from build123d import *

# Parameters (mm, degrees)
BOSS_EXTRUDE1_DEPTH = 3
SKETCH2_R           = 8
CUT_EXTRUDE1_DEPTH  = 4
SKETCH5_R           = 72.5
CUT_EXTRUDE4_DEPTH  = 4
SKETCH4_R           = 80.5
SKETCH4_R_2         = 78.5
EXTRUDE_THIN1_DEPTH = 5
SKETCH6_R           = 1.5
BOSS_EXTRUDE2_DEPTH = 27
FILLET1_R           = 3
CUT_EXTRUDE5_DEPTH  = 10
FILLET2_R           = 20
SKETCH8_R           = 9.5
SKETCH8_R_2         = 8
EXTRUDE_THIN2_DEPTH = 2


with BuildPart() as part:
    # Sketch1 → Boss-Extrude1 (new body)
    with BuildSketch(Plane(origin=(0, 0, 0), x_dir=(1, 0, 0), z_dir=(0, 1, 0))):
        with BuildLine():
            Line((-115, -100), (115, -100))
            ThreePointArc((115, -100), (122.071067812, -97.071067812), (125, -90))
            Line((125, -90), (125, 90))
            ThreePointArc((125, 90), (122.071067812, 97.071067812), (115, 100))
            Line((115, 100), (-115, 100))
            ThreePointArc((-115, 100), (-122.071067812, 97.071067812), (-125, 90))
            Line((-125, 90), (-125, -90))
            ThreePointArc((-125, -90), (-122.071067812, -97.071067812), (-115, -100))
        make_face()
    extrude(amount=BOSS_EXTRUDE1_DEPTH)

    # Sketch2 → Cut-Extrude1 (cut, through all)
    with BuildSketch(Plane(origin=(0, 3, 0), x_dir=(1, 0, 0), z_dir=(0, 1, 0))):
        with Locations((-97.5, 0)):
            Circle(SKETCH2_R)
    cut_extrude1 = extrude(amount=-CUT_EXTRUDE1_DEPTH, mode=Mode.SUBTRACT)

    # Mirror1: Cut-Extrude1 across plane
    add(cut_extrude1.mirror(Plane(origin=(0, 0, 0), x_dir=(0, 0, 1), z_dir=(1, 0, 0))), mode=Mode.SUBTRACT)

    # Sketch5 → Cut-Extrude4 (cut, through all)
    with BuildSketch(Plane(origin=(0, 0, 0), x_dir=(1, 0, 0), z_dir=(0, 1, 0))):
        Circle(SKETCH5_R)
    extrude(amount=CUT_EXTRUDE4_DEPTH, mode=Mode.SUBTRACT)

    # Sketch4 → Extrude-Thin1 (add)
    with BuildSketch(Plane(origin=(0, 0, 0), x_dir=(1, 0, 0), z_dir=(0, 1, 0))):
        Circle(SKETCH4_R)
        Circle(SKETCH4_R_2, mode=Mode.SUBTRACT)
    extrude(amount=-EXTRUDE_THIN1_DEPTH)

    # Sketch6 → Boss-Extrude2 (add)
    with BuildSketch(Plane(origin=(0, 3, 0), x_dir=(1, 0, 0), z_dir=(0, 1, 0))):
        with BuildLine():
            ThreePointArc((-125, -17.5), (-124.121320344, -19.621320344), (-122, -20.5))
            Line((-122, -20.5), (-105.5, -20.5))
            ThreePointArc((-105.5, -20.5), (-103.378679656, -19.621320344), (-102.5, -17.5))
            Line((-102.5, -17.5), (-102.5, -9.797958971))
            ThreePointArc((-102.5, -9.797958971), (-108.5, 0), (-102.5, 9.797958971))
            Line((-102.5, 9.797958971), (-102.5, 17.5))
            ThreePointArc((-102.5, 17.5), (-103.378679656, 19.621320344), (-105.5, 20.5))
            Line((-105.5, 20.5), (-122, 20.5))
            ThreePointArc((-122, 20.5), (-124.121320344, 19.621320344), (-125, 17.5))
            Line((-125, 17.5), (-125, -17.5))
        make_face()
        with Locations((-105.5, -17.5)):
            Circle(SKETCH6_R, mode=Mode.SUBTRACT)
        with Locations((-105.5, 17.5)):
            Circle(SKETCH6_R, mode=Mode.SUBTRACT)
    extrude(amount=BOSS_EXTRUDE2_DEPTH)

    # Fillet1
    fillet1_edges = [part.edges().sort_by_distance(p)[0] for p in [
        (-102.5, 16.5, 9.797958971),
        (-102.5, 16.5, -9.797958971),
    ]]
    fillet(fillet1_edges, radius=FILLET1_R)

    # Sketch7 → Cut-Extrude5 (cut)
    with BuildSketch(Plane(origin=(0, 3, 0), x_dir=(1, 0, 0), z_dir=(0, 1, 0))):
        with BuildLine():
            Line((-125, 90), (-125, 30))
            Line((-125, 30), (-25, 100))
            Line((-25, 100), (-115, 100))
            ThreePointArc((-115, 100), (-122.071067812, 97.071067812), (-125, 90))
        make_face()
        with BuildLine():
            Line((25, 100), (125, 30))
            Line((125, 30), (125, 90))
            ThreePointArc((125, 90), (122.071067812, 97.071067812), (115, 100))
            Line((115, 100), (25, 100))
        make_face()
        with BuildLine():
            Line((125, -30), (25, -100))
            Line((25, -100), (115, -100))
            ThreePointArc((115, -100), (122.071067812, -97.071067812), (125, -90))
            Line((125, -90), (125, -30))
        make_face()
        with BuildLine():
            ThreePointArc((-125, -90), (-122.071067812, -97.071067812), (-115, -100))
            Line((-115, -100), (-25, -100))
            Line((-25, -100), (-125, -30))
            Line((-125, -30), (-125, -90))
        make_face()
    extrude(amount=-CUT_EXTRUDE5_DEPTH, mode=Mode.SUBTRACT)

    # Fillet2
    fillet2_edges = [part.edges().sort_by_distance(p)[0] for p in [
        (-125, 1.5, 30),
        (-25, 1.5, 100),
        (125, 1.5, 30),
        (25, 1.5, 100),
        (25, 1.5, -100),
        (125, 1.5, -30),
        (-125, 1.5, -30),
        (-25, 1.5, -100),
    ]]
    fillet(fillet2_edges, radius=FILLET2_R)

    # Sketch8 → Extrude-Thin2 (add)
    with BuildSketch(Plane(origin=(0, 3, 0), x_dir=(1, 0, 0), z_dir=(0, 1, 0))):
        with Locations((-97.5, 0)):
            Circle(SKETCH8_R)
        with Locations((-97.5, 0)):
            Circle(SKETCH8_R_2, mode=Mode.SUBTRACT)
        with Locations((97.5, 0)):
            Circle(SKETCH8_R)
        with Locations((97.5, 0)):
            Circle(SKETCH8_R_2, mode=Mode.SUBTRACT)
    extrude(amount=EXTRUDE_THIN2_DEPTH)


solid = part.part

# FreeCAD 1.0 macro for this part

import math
import FreeCAD as App
import Part
import Sketcher

V = App.Vector
Q = App.Units.Quantity


def edges_at(feature, points):
    """Names of the edges that pass closest to the given points."""
    edges = feature.Shape.Edges
    near = lambda p: min(range(len(edges)), key=lambda i: edges[i].distToShape(Part.Vertex(*p))[0])
    return sorted({f"Edge{near(p) + 1}" for p in points})

doc = App.newDocument("Part")
body = doc.addObject("PartDesign::Body", "Body")

# Sketch on XZ plane
sketch1 = body.newObject("Sketcher::SketchObject", "Sketch")
sketch1.AttachmentSupport = (doc.getObject("XZ_Plane"), [""])
sketch1.MapMode = "FlatFace"
sketch1.addGeometry(Part.LineSegment(V(-115, 100, 0), V(115, 100, 0)), False)
sketch1.addGeometry(Part.ArcOfCircle(Part.Circle(V(115, 90, 0), V(0, 0, 1), 10), math.radians(0), math.radians(90)), False)
sketch1.addGeometry(Part.LineSegment(V(125, 90, 0), V(125, -90, 0)), False)
sketch1.addGeometry(Part.ArcOfCircle(Part.Circle(V(115, -90, 0), V(0, 0, 1), 10), math.radians(-90), math.radians(0)), False)
sketch1.addGeometry(Part.LineSegment(V(115, -100, 0), V(-115, -100, 0)), False)
sketch1.addGeometry(Part.ArcOfCircle(Part.Circle(V(-115, -90, 0), V(0, 0, 1), 10), math.radians(180), math.radians(270)), False)
sketch1.addGeometry(Part.LineSegment(V(-125, -90, 0), V(-125, 90, 0)), False)
sketch1.addGeometry(Part.ArcOfCircle(Part.Circle(V(-115, 90, 0), V(0, 0, 1), 10), math.radians(90), math.radians(180)), False)
sketch1.addConstraint(Sketcher.Constraint("Tangent", 0, 2, 1, 2))
sketch1.addConstraint(Sketcher.Constraint("Tangent", 1, 1, 2, 1))
sketch1.addConstraint(Sketcher.Constraint("Tangent", 2, 2, 3, 2))
sketch1.addConstraint(Sketcher.Constraint("Tangent", 3, 1, 4, 1))
sketch1.addConstraint(Sketcher.Constraint("Tangent", 4, 2, 5, 2))
sketch1.addConstraint(Sketcher.Constraint("Tangent", 5, 1, 6, 1))
sketch1.addConstraint(Sketcher.Constraint("Tangent", 6, 2, 7, 2))
sketch1.addConstraint(Sketcher.Constraint("Tangent", 7, 1, 0, 1))
sketch1.addConstraint(Sketcher.Constraint("Horizontal", 0))
sketch1.addConstraint(Sketcher.Constraint("Vertical", 2))
sketch1.addConstraint(Sketcher.Constraint("Horizontal", 4))
sketch1.addConstraint(Sketcher.Constraint("Vertical", 6))
sketch1.addConstraint(Sketcher.Constraint("Equal", 1, 3))
sketch1.addConstraint(Sketcher.Constraint("Equal", 3, 5))
sketch1.addConstraint(Sketcher.Constraint("Equal", 5, 7))
sketch1.addConstraint(Sketcher.Constraint("Symmetric", 1, 3, 5, 3, -1, 1))
sketch1.addConstraint(Sketcher.Constraint("Radius", 1, Q("10 mm")))
sketch1.addConstraint(Sketcher.Constraint("DistanceX", 0, 1, 0, 2, Q("230 mm")))
sketch1.addConstraint(Sketcher.Constraint("DistanceY", 2, 2, 2, 1, Q("180 mm")))
pad1 = body.newObject("PartDesign::Pad", "Pad")
pad1.Profile = sketch1
pad1.Length = 3
pad1.Reversed = True

# Sketch on XZ plane
sketch2 = body.newObject("Sketcher::SketchObject", "Sketch001")
sketch2.AttachmentSupport = (doc.getObject("XZ_Plane"), [""])
sketch2.MapMode = "FlatFace"
sketch2.AttachmentOffset = App.Placement(V(0, 0, -3), App.Rotation())
sketch2.addGeometry(Part.Circle(V(-98, 0, 0), V(0, 0, 1), 8), False)
sketch2.addConstraint(Sketcher.Constraint("PointOnObject", 0, 3, -1))
sketch2.addConstraint(Sketcher.Constraint("Diameter", 0, Q("16 mm")))
sketch2.addConstraint(Sketcher.Constraint("DistanceX", 0, 3, -1, 1, Q("97.5 mm")))
pocket1 = body.newObject("PartDesign::Pocket", "Pocket")
pocket1.Profile = sketch2
pocket1.Type = "ThroughAll"
pocket1.Reversed = True
doc.recompute()

mirrored = body.newObject("PartDesign::Mirrored", "Mirrored")
mirrored.Originals = [pocket1]
mirrored.MirrorPlane = (doc.getObject("YZ_Plane"), [""])
body.Tip = mirrored

# Sketch on XZ plane
sketch3 = body.newObject("Sketcher::SketchObject", "Sketch002")
sketch3.AttachmentSupport = (doc.getObject("XZ_Plane"), [""])
sketch3.MapMode = "FlatFace"
sketch3.addGeometry(Part.Circle(V(0, 0, 0), V(0, 0, 1), 72), False)
sketch3.addConstraint(Sketcher.Constraint("Coincident", 0, 3, -1, 1))
sketch3.addConstraint(Sketcher.Constraint("Diameter", 0, Q("145 mm")))
pocket2 = body.newObject("PartDesign::Pocket", "Pocket001")
pocket2.Profile = sketch3
pocket2.Type = "ThroughAll"

# Sketch on XZ plane
sketch4 = body.newObject("Sketcher::SketchObject", "Sketch003")
sketch4.AttachmentSupport = (doc.getObject("XZ_Plane"), [""])
sketch4.MapMode = "FlatFace"
sketch4.addGeometry(Part.Circle(V(0, 0, 0), V(0, 0, 1), 80), False)
sketch4.addGeometry(Part.Circle(V(0, 0, 0), V(0, 0, 1), 78), False)
sketch4.addConstraint(Sketcher.Constraint("Coincident", 0, 3, -1, 1))
sketch4.addConstraint(Sketcher.Constraint("Coincident", 1, 3, -1, 1))
sketch4.addConstraint(Sketcher.Constraint("Diameter", 0, Q("161 mm")))
sketch4.addConstraint(Sketcher.Constraint("Diameter", 1, Q("157 mm")))
pad2 = body.newObject("PartDesign::Pad", "Pad001")
pad2.Profile = sketch4
pad2.Length = 5

# Sketch on XZ plane
sketch5 = body.newObject("Sketcher::SketchObject", "Sketch004")
sketch5.AttachmentSupport = (doc.getObject("XZ_Plane"), [""])
sketch5.MapMode = "FlatFace"
sketch5.AttachmentOffset = App.Placement(V(0, 0, -3), App.Rotation())
sketch5.addGeometry(Part.ArcOfCircle(Part.Circle(V(-122, 17.5, 0), V(0, 0, 1), 3), math.radians(90), math.radians(180)), False)
sketch5.addGeometry(Part.LineSegment(V(-122, 20.5, 0), V(-105.5, 20.5, 0)), False)
sketch5.addGeometry(Part.ArcOfCircle(Part.Circle(V(-105.5, 17.5, 0), V(0, 0, 1), 3), math.radians(0), math.radians(90)), False)
sketch5.addGeometry(Part.LineSegment(V(-102.5, 17.5, 0), V(-102.5, 9.8, 0)), False)
sketch5.addGeometry(Part.ArcOfCircle(Part.Circle(V(-97.5, 0, 0), V(0, 0, 1), 11), math.radians(117), math.radians(243)), False)
sketch5.addGeometry(Part.LineSegment(V(-102.5, -9.8, 0), V(-102.5, -17.5, 0)), False)
sketch5.addGeometry(Part.ArcOfCircle(Part.Circle(V(-105.5, -17.5, 0), V(0, 0, 1), 3), math.radians(-90), math.radians(0)), False)
sketch5.addGeometry(Part.LineSegment(V(-105.5, -20.5, 0), V(-122, -20.5, 0)), False)
sketch5.addGeometry(Part.ArcOfCircle(Part.Circle(V(-122, -17.5, 0), V(0, 0, 1), 3), math.radians(180), math.radians(270)), False)
sketch5.addGeometry(Part.LineSegment(V(-125, -17.5, 0), V(-125, 17.5, 0)), False)
sketch5.addGeometry(Part.Circle(V(-105.5, 17.5, 0), V(0, 0, 1), 1.5), False)
sketch5.addGeometry(Part.Circle(V(-105.5, -17.5, 0), V(0, 0, 1), 1.5), False)
sketch5.addConstraint(Sketcher.Constraint("Tangent", 0, 1, 1, 1))
sketch5.addConstraint(Sketcher.Constraint("Tangent", 1, 2, 2, 2))
sketch5.addConstraint(Sketcher.Constraint("Tangent", 2, 1, 3, 1))
sketch5.addConstraint(Sketcher.Constraint("Coincident", 3, 2, 4, 1))
sketch5.addConstraint(Sketcher.Constraint("Coincident", 4, 2, 5, 1))
sketch5.addConstraint(Sketcher.Constraint("Tangent", 5, 2, 6, 2))
sketch5.addConstraint(Sketcher.Constraint("Tangent", 6, 1, 7, 1))
sketch5.addConstraint(Sketcher.Constraint("Tangent", 7, 2, 8, 2))
sketch5.addConstraint(Sketcher.Constraint("Tangent", 8, 1, 9, 1))
sketch5.addConstraint(Sketcher.Constraint("Tangent", 9, 2, 0, 2))
sketch5.addConstraint(Sketcher.Constraint("Horizontal", 1))
sketch5.addConstraint(Sketcher.Constraint("Vertical", 3))
sketch5.addConstraint(Sketcher.Constraint("Vertical", 5))
sketch5.addConstraint(Sketcher.Constraint("Horizontal", 7))
sketch5.addConstraint(Sketcher.Constraint("Vertical", 9))
sketch5.addConstraint(Sketcher.Constraint("Coincident", 10, 3, 2, 3))
sketch5.addConstraint(Sketcher.Constraint("Coincident", 11, 3, 6, 3))
sketch5.addConstraint(Sketcher.Constraint("Equal", 0, 2))
sketch5.addConstraint(Sketcher.Constraint("Equal", 2, 6))
sketch5.addConstraint(Sketcher.Constraint("Equal", 6, 8))
sketch5.addConstraint(Sketcher.Constraint("Equal", 10, 11))
sketch5.addConstraint(Sketcher.Constraint("Symmetric", 2, 3, 6, 3, -1))
sketch5.addConstraint(Sketcher.Constraint("PointOnObject", 4, 3, -1))
sketch5.addConstraint(Sketcher.Constraint("Diameter", 10, Q("3 mm")))
sketch5.addConstraint(Sketcher.Constraint("Radius", 0, Q("3 mm")))
sketch5.addConstraint(Sketcher.Constraint("Radius", 4, Q("11 mm")))
sketch5.addConstraint(Sketcher.Constraint("DistanceY", 9, 1, 9, 2, Q("35 mm")))
sketch5.addConstraint(Sketcher.Constraint("DistanceX", 1, 1, 1, 2, Q("16.5 mm")))
sketch5.addConstraint(Sketcher.Constraint("DistanceX", 0, 3, -1, 1, Q("122 mm")))
sketch5.addConstraint(Sketcher.Constraint("DistanceX", 2, 3, 4, 3, Q("8 mm")))
pad3 = body.newObject("PartDesign::Pad", "Pad002")
pad3.Profile = sketch5
pad3.Length = 27
pad3.Reversed = True
doc.recompute()

fillet = body.newObject("PartDesign::Fillet", "Fillet")
fillet.Base = (pad3, edges_at(pad3, [(-102.5, 16.5, 9.798), (-102.5, 16.5, -9.798)]))
fillet.Radius = 3

# Sketch on XZ plane
sketch6 = body.newObject("Sketcher::SketchObject", "Sketch005")
sketch6.AttachmentSupport = (doc.getObject("XZ_Plane"), [""])
sketch6.MapMode = "FlatFace"
sketch6.AttachmentOffset = App.Placement(V(0, 0, -3), App.Rotation())
sketch6.addGeometry(Part.LineSegment(V(-125, -90, 0), V(-125, -30, 0)), False)
sketch6.addGeometry(Part.LineSegment(V(-125, -30, 0), V(-25, -100, 0)), False)
sketch6.addGeometry(Part.LineSegment(V(-25, -100, 0), V(-115, -100, 0)), False)
sketch6.addGeometry(Part.ArcOfCircle(Part.Circle(V(-115, -90, 0), V(0, 0, 1), 10), math.radians(180), math.radians(270)), False)
sketch6.addGeometry(Part.LineSegment(V(25, -100, 0), V(125, -30, 0)), False)
sketch6.addGeometry(Part.LineSegment(V(125, -30, 0), V(125, -90, 0)), False)
sketch6.addGeometry(Part.ArcOfCircle(Part.Circle(V(115, -90, 0), V(0, 0, 1), 10), math.radians(-90), math.radians(0)), False)
sketch6.addGeometry(Part.LineSegment(V(115, -100, 0), V(25, -100, 0)), False)
sketch6.addGeometry(Part.LineSegment(V(125, 30, 0), V(25, 100, 0)), False)
sketch6.addGeometry(Part.LineSegment(V(25, 100, 0), V(115, 100, 0)), False)
sketch6.addGeometry(Part.ArcOfCircle(Part.Circle(V(115, 90, 0), V(0, 0, 1), 10), math.radians(0), math.radians(90)), False)
sketch6.addGeometry(Part.LineSegment(V(125, 90, 0), V(125, 30, 0)), False)
sketch6.addGeometry(Part.ArcOfCircle(Part.Circle(V(-115, 90, 0), V(0, 0, 1), 10), math.radians(90), math.radians(180)), False)
sketch6.addGeometry(Part.LineSegment(V(-115, 100, 0), V(-25, 100, 0)), False)
sketch6.addGeometry(Part.LineSegment(V(-25, 100, 0), V(-125, 30, 0)), False)
sketch6.addGeometry(Part.LineSegment(V(-125, 30, 0), V(-125, 90, 0)), False)
sketch6.addConstraint(Sketcher.Constraint("Coincident", 0, 2, 1, 1))
sketch6.addConstraint(Sketcher.Constraint("Coincident", 1, 2, 2, 1))
sketch6.addConstraint(Sketcher.Constraint("Tangent", 2, 2, 3, 2))
sketch6.addConstraint(Sketcher.Constraint("Tangent", 3, 1, 0, 1))
sketch6.addConstraint(Sketcher.Constraint("Coincident", 4, 2, 5, 1))
sketch6.addConstraint(Sketcher.Constraint("Tangent", 5, 2, 6, 2))
sketch6.addConstraint(Sketcher.Constraint("Tangent", 6, 1, 7, 1))
sketch6.addConstraint(Sketcher.Constraint("Coincident", 7, 2, 4, 1))
sketch6.addConstraint(Sketcher.Constraint("Coincident", 8, 2, 9, 1))
sketch6.addConstraint(Sketcher.Constraint("Tangent", 9, 2, 10, 2))
sketch6.addConstraint(Sketcher.Constraint("Tangent", 10, 1, 11, 1))
sketch6.addConstraint(Sketcher.Constraint("Coincident", 11, 2, 8, 1))
sketch6.addConstraint(Sketcher.Constraint("Tangent", 12, 1, 13, 1))
sketch6.addConstraint(Sketcher.Constraint("Coincident", 13, 2, 14, 1))
sketch6.addConstraint(Sketcher.Constraint("Coincident", 14, 2, 15, 1))
sketch6.addConstraint(Sketcher.Constraint("Tangent", 15, 2, 12, 2))
sketch6.addConstraint(Sketcher.Constraint("Vertical", 0))
sketch6.addConstraint(Sketcher.Constraint("Horizontal", 2))
sketch6.addConstraint(Sketcher.Constraint("Vertical", 5))
sketch6.addConstraint(Sketcher.Constraint("Horizontal", 7))
sketch6.addConstraint(Sketcher.Constraint("Horizontal", 9))
sketch6.addConstraint(Sketcher.Constraint("Vertical", 11))
sketch6.addConstraint(Sketcher.Constraint("Horizontal", 13))
sketch6.addConstraint(Sketcher.Constraint("Vertical", 15))
sketch6.addConstraint(Sketcher.Constraint("Equal", 3, 6))
sketch6.addConstraint(Sketcher.Constraint("Equal", 6, 10))
sketch6.addConstraint(Sketcher.Constraint("Equal", 10, 12))
sketch6.addConstraint(Sketcher.Constraint("Symmetric", 3, 3, 10, 3, -1, 1))
sketch6.addConstraint(Sketcher.Constraint("Symmetric", 6, 3, 12, 3, -1, 1))
sketch6.addConstraint(Sketcher.Constraint("Symmetric", 3, 3, 6, 3, -2))
sketch6.addConstraint(Sketcher.Constraint("Parallel", 1, 8))
sketch6.addConstraint(Sketcher.Constraint("Parallel", 4, 14))
sketch6.addConstraint(Sketcher.Constraint("Horizontal", 0, 2, 4, 2))
sketch6.addConstraint(Sketcher.Constraint("Horizontal", 11, 2, 14, 2))
sketch6.addConstraint(Sketcher.Constraint("Vertical", 7, 2, 8, 2))
sketch6.addConstraint(Sketcher.Constraint("Vertical", 1, 2, 13, 2))
sketch6.addConstraint(Sketcher.Constraint("Radius", 3, Q("10 mm")))
sketch6.addConstraint(Sketcher.Constraint("DistanceX", 2, 2, 2, 1, Q("90 mm")))
sketch6.addConstraint(Sketcher.Constraint("DistanceY", 0, 1, 0, 2, Q("60 mm")))
sketch6.addConstraint(Sketcher.Constraint("DistanceX", 3, 3, -1, 1, Q("115 mm")))
sketch6.addConstraint(Sketcher.Constraint("DistanceY", 3, 3, -1, 1, Q("90 mm")))
pocket3 = body.newObject("PartDesign::Pocket", "Pocket002")
pocket3.Profile = sketch6
pocket3.Length = 10
pocket3.Reversed = True
doc.recompute()

fillet2 = body.newObject("PartDesign::Fillet", "Fillet001")
fillet2.Base = (pocket3, edges_at(pocket3, [
    (-125, 1.5, 30),
    (-25, 1.5, 100),
    (125, 1.5, 30),
    (25, 1.5, 100),
    (25, 1.5, -100),
    (125, 1.5, -30),
    (-125, 1.5, -30),
    (-25, 1.5, -100),
]))
fillet2.Radius = 20

# Sketch on XZ plane
sketch7 = body.newObject("Sketcher::SketchObject", "Sketch006")
sketch7.AttachmentSupport = (doc.getObject("XZ_Plane"), [""])
sketch7.MapMode = "FlatFace"
sketch7.AttachmentOffset = App.Placement(V(0, 0, -3), App.Rotation())
sketch7.addGeometry(Part.Circle(V(-98, 0, 0), V(0, 0, 1), 10), False)
sketch7.addGeometry(Part.Circle(V(-98, 0, 0), V(0, 0, 1), 8), False)
sketch7.addGeometry(Part.Circle(V(98, 0, 0), V(0, 0, 1), 10), False)
sketch7.addGeometry(Part.Circle(V(98, 0, 0), V(0, 0, 1), 8), False)
sketch7.addConstraint(Sketcher.Constraint("Coincident", 1, 3, 0, 3))
sketch7.addConstraint(Sketcher.Constraint("Coincident", 3, 3, 2, 3))
sketch7.addConstraint(Sketcher.Constraint("Equal", 0, 2))
sketch7.addConstraint(Sketcher.Constraint("Equal", 1, 3))
sketch7.addConstraint(Sketcher.Constraint("Symmetric", 0, 3, 2, 3, -1, 1))
sketch7.addConstraint(Sketcher.Constraint("PointOnObject", 0, 3, -1))
sketch7.addConstraint(Sketcher.Constraint("Diameter", 0, Q("19 mm")))
sketch7.addConstraint(Sketcher.Constraint("Diameter", 1, Q("16 mm")))
sketch7.addConstraint(Sketcher.Constraint("DistanceX", 0, 3, 2, 3, Q("195 mm")))
pad4 = body.newObject("PartDesign::Pad", "Pad003")
pad4.Profile = sketch7
pad4.Length = 2
pad4.Reversed = True

doc.recompute()
